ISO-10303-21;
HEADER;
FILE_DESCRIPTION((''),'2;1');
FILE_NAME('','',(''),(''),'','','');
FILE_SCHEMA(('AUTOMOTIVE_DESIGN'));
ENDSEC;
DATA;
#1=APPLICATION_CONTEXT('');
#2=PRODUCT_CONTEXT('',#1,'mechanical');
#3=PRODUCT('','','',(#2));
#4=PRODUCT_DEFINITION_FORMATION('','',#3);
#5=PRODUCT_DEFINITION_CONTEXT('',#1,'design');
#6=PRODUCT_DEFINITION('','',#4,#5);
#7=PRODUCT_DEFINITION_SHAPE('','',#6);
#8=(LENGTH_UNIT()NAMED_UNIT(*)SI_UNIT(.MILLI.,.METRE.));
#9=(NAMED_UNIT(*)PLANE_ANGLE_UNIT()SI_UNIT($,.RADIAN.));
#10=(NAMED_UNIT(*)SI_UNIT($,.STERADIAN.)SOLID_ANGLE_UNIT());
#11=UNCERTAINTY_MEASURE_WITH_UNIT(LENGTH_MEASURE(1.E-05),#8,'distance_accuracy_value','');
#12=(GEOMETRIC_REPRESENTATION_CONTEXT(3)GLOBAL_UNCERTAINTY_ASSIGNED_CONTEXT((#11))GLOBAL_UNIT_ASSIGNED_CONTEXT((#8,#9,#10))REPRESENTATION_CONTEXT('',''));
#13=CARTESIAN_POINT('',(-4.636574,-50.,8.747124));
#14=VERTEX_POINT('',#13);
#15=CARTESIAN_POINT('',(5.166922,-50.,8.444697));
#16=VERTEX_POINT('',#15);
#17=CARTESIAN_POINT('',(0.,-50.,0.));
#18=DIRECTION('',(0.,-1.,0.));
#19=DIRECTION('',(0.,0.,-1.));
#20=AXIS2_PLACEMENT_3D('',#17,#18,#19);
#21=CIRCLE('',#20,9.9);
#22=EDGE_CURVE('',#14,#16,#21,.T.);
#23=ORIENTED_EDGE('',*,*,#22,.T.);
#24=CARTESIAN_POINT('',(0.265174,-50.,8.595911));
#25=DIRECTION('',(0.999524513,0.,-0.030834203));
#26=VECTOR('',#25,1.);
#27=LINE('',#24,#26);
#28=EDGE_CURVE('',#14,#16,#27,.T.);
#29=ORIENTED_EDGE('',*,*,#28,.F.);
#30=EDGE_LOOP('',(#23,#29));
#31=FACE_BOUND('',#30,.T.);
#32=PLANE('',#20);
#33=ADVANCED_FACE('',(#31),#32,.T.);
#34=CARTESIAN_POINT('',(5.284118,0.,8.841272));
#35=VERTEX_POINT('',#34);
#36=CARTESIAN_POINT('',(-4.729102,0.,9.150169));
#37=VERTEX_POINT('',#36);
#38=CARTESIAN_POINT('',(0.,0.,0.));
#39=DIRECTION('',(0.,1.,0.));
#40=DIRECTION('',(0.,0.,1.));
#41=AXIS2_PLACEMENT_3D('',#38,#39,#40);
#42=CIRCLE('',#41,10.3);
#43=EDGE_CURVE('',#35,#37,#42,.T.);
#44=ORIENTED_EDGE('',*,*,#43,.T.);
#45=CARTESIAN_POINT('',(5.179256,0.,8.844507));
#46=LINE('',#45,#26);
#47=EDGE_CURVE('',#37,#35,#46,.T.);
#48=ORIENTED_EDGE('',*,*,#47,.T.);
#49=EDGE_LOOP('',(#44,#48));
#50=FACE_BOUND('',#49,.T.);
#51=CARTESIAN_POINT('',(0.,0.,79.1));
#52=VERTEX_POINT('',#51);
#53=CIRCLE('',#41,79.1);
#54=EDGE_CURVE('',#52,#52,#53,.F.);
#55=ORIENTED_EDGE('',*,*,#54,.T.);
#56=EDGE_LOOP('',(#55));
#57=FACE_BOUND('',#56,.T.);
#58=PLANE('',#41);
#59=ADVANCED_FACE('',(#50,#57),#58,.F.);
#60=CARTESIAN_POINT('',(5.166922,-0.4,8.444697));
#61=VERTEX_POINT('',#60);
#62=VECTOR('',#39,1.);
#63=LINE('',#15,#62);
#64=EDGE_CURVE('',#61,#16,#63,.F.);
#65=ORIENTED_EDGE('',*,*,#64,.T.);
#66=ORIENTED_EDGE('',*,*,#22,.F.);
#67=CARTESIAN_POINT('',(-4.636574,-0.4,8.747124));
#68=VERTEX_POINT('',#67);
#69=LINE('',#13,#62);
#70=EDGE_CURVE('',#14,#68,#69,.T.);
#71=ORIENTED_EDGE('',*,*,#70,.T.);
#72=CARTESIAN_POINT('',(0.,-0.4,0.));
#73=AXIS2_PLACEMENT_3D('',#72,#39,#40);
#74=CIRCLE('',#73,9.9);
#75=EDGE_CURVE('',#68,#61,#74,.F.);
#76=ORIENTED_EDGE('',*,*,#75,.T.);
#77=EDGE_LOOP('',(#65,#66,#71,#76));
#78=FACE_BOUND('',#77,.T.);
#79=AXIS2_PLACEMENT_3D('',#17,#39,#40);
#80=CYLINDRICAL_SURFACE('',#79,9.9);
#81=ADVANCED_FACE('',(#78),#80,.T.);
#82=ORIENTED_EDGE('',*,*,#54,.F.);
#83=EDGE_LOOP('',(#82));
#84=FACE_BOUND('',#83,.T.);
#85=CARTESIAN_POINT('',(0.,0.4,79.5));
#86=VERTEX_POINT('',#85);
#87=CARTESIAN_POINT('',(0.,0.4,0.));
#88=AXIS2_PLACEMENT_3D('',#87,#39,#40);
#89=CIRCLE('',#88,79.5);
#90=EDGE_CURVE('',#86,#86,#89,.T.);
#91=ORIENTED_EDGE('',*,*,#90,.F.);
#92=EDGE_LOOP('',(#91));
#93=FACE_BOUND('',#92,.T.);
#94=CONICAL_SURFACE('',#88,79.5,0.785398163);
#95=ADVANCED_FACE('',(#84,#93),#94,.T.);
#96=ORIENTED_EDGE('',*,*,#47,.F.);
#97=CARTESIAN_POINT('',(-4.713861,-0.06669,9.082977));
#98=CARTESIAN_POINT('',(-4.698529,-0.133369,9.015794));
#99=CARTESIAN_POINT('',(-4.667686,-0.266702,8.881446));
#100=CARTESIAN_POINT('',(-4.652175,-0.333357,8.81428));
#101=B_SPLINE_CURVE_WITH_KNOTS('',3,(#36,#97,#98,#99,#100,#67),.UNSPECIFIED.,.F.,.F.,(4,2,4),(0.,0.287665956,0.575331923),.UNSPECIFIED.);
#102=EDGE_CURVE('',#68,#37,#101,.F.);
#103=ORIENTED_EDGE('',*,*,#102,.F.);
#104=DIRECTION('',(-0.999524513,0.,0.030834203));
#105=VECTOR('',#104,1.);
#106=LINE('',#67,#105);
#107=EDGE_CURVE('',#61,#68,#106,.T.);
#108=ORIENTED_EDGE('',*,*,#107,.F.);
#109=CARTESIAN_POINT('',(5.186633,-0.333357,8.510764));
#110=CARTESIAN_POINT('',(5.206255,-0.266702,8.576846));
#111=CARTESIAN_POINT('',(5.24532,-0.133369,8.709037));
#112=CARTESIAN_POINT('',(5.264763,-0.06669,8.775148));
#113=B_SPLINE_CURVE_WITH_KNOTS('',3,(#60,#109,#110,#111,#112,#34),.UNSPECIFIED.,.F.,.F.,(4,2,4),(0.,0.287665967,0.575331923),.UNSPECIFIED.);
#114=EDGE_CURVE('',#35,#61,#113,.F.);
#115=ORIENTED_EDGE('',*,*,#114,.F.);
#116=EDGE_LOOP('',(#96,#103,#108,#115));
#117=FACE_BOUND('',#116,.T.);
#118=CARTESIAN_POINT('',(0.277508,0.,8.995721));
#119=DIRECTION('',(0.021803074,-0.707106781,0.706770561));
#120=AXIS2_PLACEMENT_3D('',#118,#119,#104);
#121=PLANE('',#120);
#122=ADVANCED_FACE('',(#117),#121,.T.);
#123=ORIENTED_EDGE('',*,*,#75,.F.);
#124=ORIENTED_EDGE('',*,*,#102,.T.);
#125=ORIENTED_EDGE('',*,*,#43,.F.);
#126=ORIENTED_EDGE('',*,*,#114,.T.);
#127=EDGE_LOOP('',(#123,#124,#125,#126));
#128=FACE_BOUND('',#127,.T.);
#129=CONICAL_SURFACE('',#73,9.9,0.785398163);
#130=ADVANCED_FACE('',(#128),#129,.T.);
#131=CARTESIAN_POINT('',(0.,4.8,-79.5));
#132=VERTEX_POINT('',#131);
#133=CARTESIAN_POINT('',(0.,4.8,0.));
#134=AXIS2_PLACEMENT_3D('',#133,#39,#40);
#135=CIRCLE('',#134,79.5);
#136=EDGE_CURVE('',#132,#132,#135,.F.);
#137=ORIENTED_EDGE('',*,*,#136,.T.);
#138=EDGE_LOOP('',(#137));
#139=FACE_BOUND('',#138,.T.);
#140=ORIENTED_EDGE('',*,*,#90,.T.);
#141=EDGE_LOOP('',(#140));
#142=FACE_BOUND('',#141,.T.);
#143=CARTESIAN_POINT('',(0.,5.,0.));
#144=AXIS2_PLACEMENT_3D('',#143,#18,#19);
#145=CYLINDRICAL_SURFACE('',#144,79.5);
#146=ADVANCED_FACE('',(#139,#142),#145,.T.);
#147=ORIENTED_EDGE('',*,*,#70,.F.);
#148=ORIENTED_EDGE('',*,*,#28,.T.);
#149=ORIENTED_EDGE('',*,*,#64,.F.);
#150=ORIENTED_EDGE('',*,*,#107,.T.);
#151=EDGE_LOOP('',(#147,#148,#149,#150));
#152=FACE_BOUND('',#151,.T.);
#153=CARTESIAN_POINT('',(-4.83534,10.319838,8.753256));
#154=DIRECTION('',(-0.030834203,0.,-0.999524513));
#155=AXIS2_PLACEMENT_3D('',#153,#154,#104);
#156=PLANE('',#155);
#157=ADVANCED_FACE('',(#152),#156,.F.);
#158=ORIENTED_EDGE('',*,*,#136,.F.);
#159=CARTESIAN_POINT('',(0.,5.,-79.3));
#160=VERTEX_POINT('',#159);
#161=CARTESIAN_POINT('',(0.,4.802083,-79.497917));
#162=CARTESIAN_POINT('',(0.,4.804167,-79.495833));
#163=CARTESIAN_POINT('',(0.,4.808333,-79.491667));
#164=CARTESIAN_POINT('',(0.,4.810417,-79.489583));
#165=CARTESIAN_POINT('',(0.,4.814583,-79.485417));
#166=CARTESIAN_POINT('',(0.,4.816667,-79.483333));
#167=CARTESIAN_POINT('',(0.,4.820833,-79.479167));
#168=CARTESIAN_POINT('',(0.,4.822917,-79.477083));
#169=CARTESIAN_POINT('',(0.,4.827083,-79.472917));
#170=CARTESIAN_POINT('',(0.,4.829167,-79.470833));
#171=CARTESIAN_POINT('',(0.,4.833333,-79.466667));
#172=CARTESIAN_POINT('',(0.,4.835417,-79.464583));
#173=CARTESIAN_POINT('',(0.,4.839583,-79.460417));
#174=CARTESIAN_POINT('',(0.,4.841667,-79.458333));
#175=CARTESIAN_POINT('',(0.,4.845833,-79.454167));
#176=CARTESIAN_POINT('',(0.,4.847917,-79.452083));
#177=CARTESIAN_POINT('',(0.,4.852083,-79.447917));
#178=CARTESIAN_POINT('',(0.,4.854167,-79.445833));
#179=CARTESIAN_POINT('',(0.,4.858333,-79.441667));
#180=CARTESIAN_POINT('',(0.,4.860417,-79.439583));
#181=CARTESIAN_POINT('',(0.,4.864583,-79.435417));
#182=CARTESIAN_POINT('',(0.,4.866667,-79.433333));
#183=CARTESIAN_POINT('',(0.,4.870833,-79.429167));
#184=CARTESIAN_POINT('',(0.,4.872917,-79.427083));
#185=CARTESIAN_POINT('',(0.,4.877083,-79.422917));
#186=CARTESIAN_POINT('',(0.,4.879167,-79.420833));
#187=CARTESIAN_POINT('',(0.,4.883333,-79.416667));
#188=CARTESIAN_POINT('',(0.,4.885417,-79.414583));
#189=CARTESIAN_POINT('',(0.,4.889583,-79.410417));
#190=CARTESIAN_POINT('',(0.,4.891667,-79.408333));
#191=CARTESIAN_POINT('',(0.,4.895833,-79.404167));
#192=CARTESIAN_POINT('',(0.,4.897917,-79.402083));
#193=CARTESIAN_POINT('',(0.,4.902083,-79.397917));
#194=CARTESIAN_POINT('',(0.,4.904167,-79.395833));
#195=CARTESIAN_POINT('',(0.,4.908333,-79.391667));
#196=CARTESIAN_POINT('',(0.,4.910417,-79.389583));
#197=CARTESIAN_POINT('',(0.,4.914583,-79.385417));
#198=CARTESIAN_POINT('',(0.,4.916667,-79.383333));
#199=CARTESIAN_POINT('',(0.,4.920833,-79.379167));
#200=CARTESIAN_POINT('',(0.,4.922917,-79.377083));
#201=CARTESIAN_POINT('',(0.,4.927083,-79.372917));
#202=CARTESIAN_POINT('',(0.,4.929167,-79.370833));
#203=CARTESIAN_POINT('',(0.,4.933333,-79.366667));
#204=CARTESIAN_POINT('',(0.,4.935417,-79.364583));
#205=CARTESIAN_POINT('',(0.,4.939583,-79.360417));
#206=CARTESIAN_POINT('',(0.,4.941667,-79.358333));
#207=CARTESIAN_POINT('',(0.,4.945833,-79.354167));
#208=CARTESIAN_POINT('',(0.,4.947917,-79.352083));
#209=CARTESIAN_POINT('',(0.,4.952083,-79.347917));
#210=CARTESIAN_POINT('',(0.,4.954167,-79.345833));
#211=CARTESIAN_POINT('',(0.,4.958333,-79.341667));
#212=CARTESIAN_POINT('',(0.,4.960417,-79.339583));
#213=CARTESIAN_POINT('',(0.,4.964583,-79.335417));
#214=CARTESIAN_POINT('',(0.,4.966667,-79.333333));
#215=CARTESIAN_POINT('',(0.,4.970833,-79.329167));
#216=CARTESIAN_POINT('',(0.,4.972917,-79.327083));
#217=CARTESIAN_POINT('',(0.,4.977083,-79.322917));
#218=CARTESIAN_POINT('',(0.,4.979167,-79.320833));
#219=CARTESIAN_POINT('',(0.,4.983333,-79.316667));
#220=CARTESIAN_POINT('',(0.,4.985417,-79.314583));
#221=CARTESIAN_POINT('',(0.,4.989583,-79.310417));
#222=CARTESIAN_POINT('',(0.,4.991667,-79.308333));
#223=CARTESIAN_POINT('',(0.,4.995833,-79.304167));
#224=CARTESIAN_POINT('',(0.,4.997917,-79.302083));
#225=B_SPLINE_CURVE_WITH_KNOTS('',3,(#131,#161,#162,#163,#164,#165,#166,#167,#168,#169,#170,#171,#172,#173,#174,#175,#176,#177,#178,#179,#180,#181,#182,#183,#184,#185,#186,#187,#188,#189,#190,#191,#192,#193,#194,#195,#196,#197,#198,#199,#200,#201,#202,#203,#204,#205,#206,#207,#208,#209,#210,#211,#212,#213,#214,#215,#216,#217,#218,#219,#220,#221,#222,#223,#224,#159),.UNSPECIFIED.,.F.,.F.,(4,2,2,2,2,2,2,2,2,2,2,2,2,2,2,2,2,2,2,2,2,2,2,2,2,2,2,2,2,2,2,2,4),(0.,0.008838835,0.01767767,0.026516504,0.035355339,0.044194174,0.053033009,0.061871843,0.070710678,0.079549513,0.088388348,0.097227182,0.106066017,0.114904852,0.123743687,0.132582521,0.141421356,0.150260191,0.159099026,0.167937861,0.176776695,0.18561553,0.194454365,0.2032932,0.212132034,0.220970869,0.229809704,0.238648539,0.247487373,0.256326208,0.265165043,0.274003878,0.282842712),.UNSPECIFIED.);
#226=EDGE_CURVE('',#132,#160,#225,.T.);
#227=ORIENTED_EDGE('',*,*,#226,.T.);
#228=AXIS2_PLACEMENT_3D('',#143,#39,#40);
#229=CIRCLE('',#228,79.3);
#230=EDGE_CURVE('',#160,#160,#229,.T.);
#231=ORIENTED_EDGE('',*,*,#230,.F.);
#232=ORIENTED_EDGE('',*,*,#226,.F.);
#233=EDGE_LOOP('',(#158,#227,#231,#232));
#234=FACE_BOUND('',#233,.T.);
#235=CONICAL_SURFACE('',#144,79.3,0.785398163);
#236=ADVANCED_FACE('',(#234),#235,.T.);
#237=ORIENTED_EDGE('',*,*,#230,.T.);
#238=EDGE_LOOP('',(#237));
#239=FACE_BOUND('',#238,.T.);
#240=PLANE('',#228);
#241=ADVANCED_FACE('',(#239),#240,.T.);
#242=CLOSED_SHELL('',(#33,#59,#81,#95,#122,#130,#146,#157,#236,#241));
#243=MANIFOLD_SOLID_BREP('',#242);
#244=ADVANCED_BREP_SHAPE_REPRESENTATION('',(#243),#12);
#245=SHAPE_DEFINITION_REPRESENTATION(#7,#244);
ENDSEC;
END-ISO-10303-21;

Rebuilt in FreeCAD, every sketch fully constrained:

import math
import FreeCAD as App
import Part
import Sketcher

V = App.Vector
Q = App.Units.Quantity


def edges_at(feature, points):
    """Names of the edges that pass closest to the given points."""
    edges = feature.Shape.Edges
    near = lambda p: min(range(len(edges)), key=lambda i: edges[i].distToShape(Part.Vertex(*p))[0])
    return sorted({f"Edge{near(p) + 1}" for p in points})

doc = App.newDocument("Part")
body = doc.addObject("PartDesign::Body", "Body")

# Sketch on XZ plane
sketch1 = doc.addObject("Sketcher::SketchObject", "Sketch")
body.addObject(sketch1)
sketch1.AttachmentSupport = (doc.XZ_Plane, [""])
sketch1.MapMode = "FlatFace"
sketch1.addGeometry(Part.Circle(V(0, 0, 0), V(0, 0, 1), 80), False)
sketch1.addConstraint([
    Sketcher.Constraint("Coincident", 0, 3, -1, 1),
    Sketcher.Constraint("Diameter", 0, Q("159 mm")),
])
pad1 = doc.addObject("PartDesign::Pad", "Pad")
body.addObject(pad1)
pad1.Profile = sketch1
pad1.Length = 5
pad1.Reversed = True

# Sketch on XZ plane
sketch2 = doc.addObject("Sketcher::SketchObject", "Sketch001")
body.addObject(sketch2)
sketch2.AttachmentSupport = (doc.XZ_Plane, [""])
sketch2.MapMode = "FlatFace"
sketch2.addGeometry(Part.Circle(V(0, 0, 0), V(0, 0, 1), 10), False)
sketch2.addConstraint([
    Sketcher.Constraint("Coincident", 0, 3, -1, 1),
    Sketcher.Constraint("Diameter", 0, Q("19.8 mm")),
])
pad2 = doc.addObject("PartDesign::Pad", "Pad001")
body.addObject(pad2)
pad2.Profile = sketch2
pad2.Length = 50
doc.recompute()

chamfer = doc.addObject("PartDesign::Chamfer", "Chamfer")
body.addObject(chamfer)
chamfer.Base = (pad2, edges_at(pad2, [(0, 5, -79.5)]))
chamfer.Size = 0.2

# Sketch on XZ plane
sketch3 = doc.addObject("Sketcher::SketchObject", "Sketch002")
body.addObject(sketch3)
sketch3.AttachmentSupport = (doc.XZ_Plane, [""])
sketch3.MapMode = "FlatFace"
sketch3.AttachmentOffset = App.Placement(V(0, 0, 50), App.Rotation())
sketch3.addGeometry([
    Part.LineSegment(V(-5, 9, 0), V(5, 8, 0)),
    Part.ArcOfCircle(Part.Circle(V(0, 0, 0), V(0, 0, 1), 10), math.radians(58), math.radians(119)),
], False)
sketch3.addConstraint([
    Sketcher.Constraint("Coincident", 0, 1, 1, 2),
    Sketcher.Constraint("Coincident", 1, 1, 0, 2),
    Sketcher.Constraint("Coincident", 1, 3, -1, 1),
    Sketcher.Constraint("Radius", 1, Q("10 mm")),
    Sketcher.Constraint("Distance", 0, Q("10.205881 mm")),
    Sketcher.Constraint("DistanceX", 0, 1, -1, 1, Q("4.83534 mm")),
])
pocket1 = doc.addObject("PartDesign::Pocket", "Pocket")
body.addObject(pocket1)
pocket1.Profile = sketch3
pocket1.Length = 50
doc.recompute()

chamfer2 = doc.addObject("PartDesign::Chamfer", "Chamfer001")
body.addObject(chamfer2)
chamfer2.Base = (pocket1, edges_at(pocket1, [(0.265, 0, 8.596), (0, 0, -79.5), (-0.305, 0, -9.895)]))
chamfer2.Size = 0.4

doc.recompute()
